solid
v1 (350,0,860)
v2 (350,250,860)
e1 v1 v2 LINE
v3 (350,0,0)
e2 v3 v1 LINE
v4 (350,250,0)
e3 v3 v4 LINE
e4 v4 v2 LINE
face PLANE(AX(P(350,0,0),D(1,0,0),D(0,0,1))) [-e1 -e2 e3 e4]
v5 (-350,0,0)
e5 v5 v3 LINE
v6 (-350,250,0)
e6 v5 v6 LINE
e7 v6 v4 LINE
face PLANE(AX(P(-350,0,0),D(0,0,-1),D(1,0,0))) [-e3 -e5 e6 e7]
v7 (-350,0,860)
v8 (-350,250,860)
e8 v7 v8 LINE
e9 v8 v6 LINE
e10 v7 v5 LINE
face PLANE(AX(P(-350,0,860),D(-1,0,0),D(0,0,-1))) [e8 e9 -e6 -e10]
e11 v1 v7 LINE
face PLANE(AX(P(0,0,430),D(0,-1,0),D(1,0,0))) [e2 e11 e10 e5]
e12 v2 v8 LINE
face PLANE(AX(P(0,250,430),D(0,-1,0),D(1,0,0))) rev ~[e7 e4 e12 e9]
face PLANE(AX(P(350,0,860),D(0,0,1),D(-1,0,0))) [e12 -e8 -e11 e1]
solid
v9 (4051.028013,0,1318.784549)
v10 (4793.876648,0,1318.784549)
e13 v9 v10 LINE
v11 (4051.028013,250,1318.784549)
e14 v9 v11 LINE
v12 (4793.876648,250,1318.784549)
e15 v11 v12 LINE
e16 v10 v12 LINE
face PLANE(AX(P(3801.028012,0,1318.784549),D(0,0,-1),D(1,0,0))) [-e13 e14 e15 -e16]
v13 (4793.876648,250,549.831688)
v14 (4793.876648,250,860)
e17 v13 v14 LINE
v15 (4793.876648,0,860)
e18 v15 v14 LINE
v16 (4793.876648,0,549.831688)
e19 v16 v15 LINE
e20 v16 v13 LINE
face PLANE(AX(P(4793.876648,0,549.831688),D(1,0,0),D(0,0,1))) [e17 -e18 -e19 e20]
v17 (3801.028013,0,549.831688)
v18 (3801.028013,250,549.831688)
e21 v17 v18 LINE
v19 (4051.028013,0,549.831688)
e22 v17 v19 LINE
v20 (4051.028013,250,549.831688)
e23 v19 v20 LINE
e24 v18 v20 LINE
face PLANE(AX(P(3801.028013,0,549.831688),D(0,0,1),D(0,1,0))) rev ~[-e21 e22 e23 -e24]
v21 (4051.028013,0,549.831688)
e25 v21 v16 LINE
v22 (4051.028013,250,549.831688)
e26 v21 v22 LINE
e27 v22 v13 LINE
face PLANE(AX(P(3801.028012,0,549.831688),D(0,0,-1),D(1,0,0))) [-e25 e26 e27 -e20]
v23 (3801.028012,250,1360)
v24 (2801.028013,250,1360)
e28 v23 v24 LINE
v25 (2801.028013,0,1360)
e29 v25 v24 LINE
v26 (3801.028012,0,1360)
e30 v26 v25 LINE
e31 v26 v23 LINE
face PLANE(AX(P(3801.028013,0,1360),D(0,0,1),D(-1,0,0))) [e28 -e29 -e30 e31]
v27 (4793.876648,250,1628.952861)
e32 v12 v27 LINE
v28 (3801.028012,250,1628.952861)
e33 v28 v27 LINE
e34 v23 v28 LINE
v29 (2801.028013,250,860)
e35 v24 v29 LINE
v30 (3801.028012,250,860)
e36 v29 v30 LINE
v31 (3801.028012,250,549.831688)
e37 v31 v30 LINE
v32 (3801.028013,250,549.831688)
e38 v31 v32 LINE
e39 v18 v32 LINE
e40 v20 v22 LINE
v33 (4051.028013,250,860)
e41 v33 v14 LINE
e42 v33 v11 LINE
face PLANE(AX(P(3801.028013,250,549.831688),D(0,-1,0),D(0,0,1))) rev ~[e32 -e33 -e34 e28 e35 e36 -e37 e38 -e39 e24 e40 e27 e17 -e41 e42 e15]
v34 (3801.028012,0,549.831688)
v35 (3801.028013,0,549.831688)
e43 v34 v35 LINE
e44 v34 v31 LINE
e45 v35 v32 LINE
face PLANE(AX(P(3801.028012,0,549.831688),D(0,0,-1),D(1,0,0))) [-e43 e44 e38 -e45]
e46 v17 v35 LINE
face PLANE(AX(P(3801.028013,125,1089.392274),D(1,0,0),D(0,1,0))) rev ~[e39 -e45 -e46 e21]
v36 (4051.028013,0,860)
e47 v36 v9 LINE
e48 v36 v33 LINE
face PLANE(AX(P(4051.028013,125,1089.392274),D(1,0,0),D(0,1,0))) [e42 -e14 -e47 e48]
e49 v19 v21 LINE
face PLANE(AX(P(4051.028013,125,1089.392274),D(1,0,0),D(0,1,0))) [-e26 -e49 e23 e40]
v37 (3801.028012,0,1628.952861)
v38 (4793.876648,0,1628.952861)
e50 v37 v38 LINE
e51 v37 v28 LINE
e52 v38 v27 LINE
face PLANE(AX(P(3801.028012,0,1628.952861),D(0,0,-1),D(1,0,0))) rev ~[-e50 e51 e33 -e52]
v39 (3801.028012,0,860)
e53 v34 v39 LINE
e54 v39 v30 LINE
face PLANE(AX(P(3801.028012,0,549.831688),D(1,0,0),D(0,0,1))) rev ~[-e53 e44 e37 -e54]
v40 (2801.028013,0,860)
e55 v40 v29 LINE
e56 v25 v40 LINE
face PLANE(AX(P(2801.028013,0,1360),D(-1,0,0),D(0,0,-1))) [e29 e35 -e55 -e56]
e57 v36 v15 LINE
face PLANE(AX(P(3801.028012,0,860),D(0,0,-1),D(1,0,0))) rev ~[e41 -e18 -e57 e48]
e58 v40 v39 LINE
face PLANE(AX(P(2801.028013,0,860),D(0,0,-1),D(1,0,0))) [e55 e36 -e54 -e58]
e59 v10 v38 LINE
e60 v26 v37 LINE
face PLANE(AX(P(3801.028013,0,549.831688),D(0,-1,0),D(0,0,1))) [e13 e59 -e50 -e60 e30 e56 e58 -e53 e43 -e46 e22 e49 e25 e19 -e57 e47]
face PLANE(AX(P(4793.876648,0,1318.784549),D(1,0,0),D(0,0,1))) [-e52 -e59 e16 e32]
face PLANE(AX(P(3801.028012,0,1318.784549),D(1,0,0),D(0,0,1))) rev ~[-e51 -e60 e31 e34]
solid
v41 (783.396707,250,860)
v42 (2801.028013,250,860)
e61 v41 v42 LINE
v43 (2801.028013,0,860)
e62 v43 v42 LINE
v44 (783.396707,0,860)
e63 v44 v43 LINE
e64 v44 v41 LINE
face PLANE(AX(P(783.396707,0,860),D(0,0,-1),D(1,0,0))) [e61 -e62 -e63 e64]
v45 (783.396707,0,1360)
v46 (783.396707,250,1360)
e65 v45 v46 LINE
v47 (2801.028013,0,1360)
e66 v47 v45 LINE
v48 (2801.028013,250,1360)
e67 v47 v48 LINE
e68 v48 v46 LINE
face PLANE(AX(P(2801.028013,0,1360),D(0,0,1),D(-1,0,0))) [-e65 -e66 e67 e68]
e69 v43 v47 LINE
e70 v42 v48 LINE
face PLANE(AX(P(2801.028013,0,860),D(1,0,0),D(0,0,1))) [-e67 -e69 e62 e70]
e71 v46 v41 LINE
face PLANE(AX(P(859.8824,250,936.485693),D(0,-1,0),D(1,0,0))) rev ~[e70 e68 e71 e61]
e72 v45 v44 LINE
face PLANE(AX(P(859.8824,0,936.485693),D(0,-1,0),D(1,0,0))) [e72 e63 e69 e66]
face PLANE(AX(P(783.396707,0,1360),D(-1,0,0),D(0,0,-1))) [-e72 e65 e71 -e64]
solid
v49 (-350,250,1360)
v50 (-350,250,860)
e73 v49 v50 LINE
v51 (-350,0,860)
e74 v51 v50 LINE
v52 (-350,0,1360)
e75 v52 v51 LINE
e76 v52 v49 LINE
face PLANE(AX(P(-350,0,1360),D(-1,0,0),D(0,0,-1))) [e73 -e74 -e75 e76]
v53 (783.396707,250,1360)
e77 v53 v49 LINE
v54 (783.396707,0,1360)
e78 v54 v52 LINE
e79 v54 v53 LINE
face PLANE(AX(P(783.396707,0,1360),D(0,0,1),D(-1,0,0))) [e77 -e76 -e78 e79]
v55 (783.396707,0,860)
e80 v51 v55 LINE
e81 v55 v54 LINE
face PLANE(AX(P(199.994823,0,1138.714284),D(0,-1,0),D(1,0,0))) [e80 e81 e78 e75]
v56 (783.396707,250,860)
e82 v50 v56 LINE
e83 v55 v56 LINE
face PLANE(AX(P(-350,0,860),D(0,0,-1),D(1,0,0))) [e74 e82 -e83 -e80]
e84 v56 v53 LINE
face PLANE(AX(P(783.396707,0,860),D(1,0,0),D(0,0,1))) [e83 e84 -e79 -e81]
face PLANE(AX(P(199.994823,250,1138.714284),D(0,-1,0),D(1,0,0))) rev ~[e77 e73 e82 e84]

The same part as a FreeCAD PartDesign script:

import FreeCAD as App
import Part
import Sketcher
from FreeCAD import Vector
Q = App.Units.Quantity

doc = App.newDocument("Part")
body = doc.addObject("PartDesign::Body", "Body")

# Sketch on XZ plane
sketch1 = body.newObject("Sketcher::SketchObject", "Sketch")
sketch1.AttachmentSupport = (doc.getObject("XZ_Plane"), [""])
sketch1.MapMode = "FlatFace"
sketch1.addGeometry(Part.LineSegment(Vector(350, 0, 0), Vector(350, 860, 0)), False)
sketch1.addGeometry(Part.LineSegment(Vector(350, 860, 0), Vector(-350, 860, 0)), False)
sketch1.addGeometry(Part.LineSegment(Vector(-350, 860, 0), Vector(-350, 0, 0)), False)
sketch1.addGeometry(Part.LineSegment(Vector(-350, 0, 0), Vector(350, 0, 0)), False)
sketch1.addConstraint(Sketcher.Constraint("Coincident", 0, 2, 1, 1))
sketch1.addConstraint(Sketcher.Constraint("Coincident", 1, 2, 2, 1))
sketch1.addConstraint(Sketcher.Constraint("Coincident", 2, 2, 3, 1))
sketch1.addConstraint(Sketcher.Constraint("Coincident", 3, 2, 0, 1))
sketch1.addConstraint(Sketcher.Constraint("Vertical", 0))
sketch1.addConstraint(Sketcher.Constraint("Horizontal", 1))
sketch1.addConstraint(Sketcher.Constraint("Vertical", 2))
sketch1.addConstraint(Sketcher.Constraint("Horizontal", 3))
sketch1.addConstraint(Sketcher.Constraint("Symmetric", 2, 2, 3, 2, -1, 1))
sketch1.addConstraint(Sketcher.Constraint("DistanceX", 1, 2, 1, 1, Q("700 mm")))
sketch1.addConstraint(Sketcher.Constraint("DistanceY", 0, 1, 0, 2, Q("860 mm")))
pad1 = body.newObject("PartDesign::Pad", "Pad")
pad1.Profile = sketch1
pad1.Length = 250
pad1.Reversed = True
body2 = doc.addObject("PartDesign::Body", "Body001")

# Sketch on XZ plane
sketch2 = body2.newObject("Sketcher::SketchObject", "Sketch001")
sketch2.AttachmentSupport = (doc.getObject("XZ_Plane001"), [""])
sketch2.MapMode = "FlatFace"
sketch2.addGeometry(Part.LineSegment(Vector(783, 860, 0), Vector(783, 1360, 0)), False)
sketch2.addGeometry(Part.LineSegment(Vector(783, 1360, 0), Vector(-350, 1360, 0)), False)
sketch2.addGeometry(Part.LineSegment(Vector(-350, 1360, 0), Vector(-350, 860, 0)), False)
sketch2.addGeometry(Part.LineSegment(Vector(-350, 860, 0), Vector(783, 860, 0)), False)
sketch2.addConstraint(Sketcher.Constraint("Coincident", 0, 2, 1, 1))
sketch2.addConstraint(Sketcher.Constraint("Coincident", 1, 2, 2, 1))
sketch2.addConstraint(Sketcher.Constraint("Coincident", 2, 2, 3, 1))
sketch2.addConstraint(Sketcher.Constraint("Coincident", 3, 2, 0, 1))
sketch2.addConstraint(Sketcher.Constraint("Vertical", 0))
sketch2.addConstraint(Sketcher.Constraint("Horizontal", 1))
sketch2.addConstraint(Sketcher.Constraint("Vertical", 2))
sketch2.addConstraint(Sketcher.Constraint("Horizontal", 3))
sketch2.addConstraint(Sketcher.Constraint("DistanceY", 0, 1, 0, 2, Q("500 mm")))
sketch2.addConstraint(Sketcher.Constraint("DistanceY", -1, 1, 0, 2, Q("1360 mm")))
sketch2.addConstraint(Sketcher.Constraint("DistanceX", 1, 2, -1, 1, Q("350 mm")))
sketch2.addConstraint(Sketcher.Constraint("DistanceX", 1, 2, 1, 1, Q("1133.396707 mm")))
pad2 = body2.newObject("PartDesign::Pad", "Pad001")
pad2.Profile = sketch2
pad2.Length = 250
pad2.Reversed = True
body3 = doc.addObject("PartDesign::Body", "Body002")

# Sketch on XZ plane
sketch3 = body3.newObject("Sketcher::SketchObject", "Sketch002")
sketch3.AttachmentSupport = (doc.getObject("XZ_Plane002"), [""])
sketch3.MapMode = "FlatFace"
sketch3.addGeometry(Part.LineSegment(Vector(783, 860, 0), Vector(2801, 860, 0)), False)
sketch3.addGeometry(Part.LineSegment(Vector(2801, 860, 0), Vector(2801, 1360, 0)), False)
sketch3.addGeometry(Part.LineSegment(Vector(2801, 1360, 0), Vector(783, 1360, 0)), False)
sketch3.addGeometry(Part.LineSegment(Vector(783, 1360, 0), Vector(783, 860, 0)), False)
sketch3.addConstraint(Sketcher.Constraint("Coincident", 0, 2, 1, 1))
sketch3.addConstraint(Sketcher.Constraint("Coincident", 1, 2, 2, 1))
sketch3.addConstraint(Sketcher.Constraint("Coincident", 2, 2, 3, 1))
sketch3.addConstraint(Sketcher.Constraint("Coincident", 3, 2, 0, 1))
sketch3.addConstraint(Sketcher.Constraint("Horizontal", 0))
sketch3.addConstraint(Sketcher.Constraint("Vertical", 1))
sketch3.addConstraint(Sketcher.Constraint("Horizontal", 2))
sketch3.addConstraint(Sketcher.Constraint("Vertical", 3))
sketch3.addConstraint(Sketcher.Constraint("DistanceY", 1, 1, 1, 2, Q("500 mm")))
sketch3.addConstraint(Sketcher.Constraint("DistanceY", -1, 1, 0, 2, Q("860 mm")))
sketch3.addConstraint(Sketcher.Constraint("DistanceX", 0, 1, 0, 2, Q("2017.631306 mm")))
sketch3.addConstraint(Sketcher.Constraint("DistanceX", -1, 1, 0, 2, Q("2801.028013 mm")))
pad3 = body3.newObject("PartDesign::Pad", "Pad002")
pad3.Profile = sketch3
pad3.Length = 250
pad3.Reversed = True
body4 = doc.addObject("PartDesign::Body", "Body003")

# Sketch on XZ plane
sketch4 = body4.newObject("Sketcher::SketchObject", "Sketch003")
sketch4.AttachmentSupport = (doc.getObject("XZ_Plane003"), [""])
sketch4.MapMode = "FlatFace"
sketch4.addGeometry(Part.LineSegment(Vector(2801, 1360, 0), Vector(2801, 860, 0)), False)
sketch4.addGeometry(Part.LineSegment(Vector(2801, 860, 0), Vector(3801, 860, 0)), False)
sketch4.addGeometry(Part.LineSegment(Vector(3801, 860, 0), Vector(3801, 1360, 0)), False)
sketch4.addGeometry(Part.LineSegment(Vector(3801, 1360, 0), Vector(2801, 1360, 0)), False)
sketch4.addConstraint(Sketcher.Constraint("Coincident", 0, 2, 1, 1))
sketch4.addConstraint(Sketcher.Constraint("Coincident", 1, 2, 2, 1))
sketch4.addConstraint(Sketcher.Constraint("Coincident", 2, 2, 3, 1))
sketch4.addConstraint(Sketcher.Constraint("Coincident", 3, 2, 0, 1))
sketch4.addConstraint(Sketcher.Constraint("Vertical", 0))
sketch4.addConstraint(Sketcher.Constraint("Horizontal", 1))
sketch4.addConstraint(Sketcher.Constraint("Vertical", 2))
sketch4.addConstraint(Sketcher.Constraint("Horizontal", 3))
sketch4.addConstraint(Sketcher.Constraint("DistanceX", 1, 1, 1, 2, Q("1000 mm")))
sketch4.addConstraint(Sketcher.Constraint("DistanceY", 0, 2, 0, 1, Q("500 mm")))
sketch4.addConstraint(Sketcher.Constraint("DistanceY", -1, 1, 0, 2, Q("860 mm")))
sketch4.addConstraint(Sketcher.Constraint("DistanceX", -1, 1, 0, 2, Q("2801.028013 mm")))
pad4 = body4.newObject("PartDesign::Pad", "Pad003")
pad4.Profile = sketch4
pad4.Length = 250
pad4.Reversed = True

# Sketch on YZ plane
sketch5 = body4.newObject("Sketcher::SketchObject", "Sketch004")
sketch5.AttachmentSupport = (doc.getObject("YZ_Plane003"), [""])
sketch5.MapMode = "FlatFace"
sketch5.AttachmentOffset = App.Placement(Vector(0, 0, 3801.028013), App.Rotation())
sketch5.addGeometry(Part.LineSegment(Vector(0, 1629, 0), Vector(0, 550, 0)), False)
sketch5.addGeometry(Part.LineSegment(Vector(0, 550, 0), Vector(250, 550, 0)), False)
sketch5.addGeometry(Part.LineSegment(Vector(250, 550, 0), Vector(250, 1629, 0)), False)
sketch5.addGeometry(Part.LineSegment(Vector(250, 1629, 0), Vector(0, 1629, 0)), False)
sketch5.addConstraint(Sketcher.Constraint("Coincident", 0, 2, 1, 1))
sketch5.addConstraint(Sketcher.Constraint("Coincident", 1, 2, 2, 1))
sketch5.addConstraint(Sketcher.Constraint("Coincident", 2, 2, 3, 1))
sketch5.addConstraint(Sketcher.Constraint("Coincident", 3, 2, 0, 1))
sketch5.addConstraint(Sketcher.Constraint("Vertical", 0))
sketch5.addConstraint(Sketcher.Constraint("Horizontal", 1))
sketch5.addConstraint(Sketcher.Constraint("Vertical", 2))
sketch5.addConstraint(Sketcher.Constraint("Horizontal", 3))
sketch5.addConstraint(Sketcher.Constraint("PointOnObject", 0, 2, -2))
sketch5.addConstraint(Sketcher.Constraint("DistanceX", 1, 1, 1, 2, Q("250 mm")))
sketch5.addConstraint(Sketcher.Constraint("DistanceY", 0, 2, 0, 1, Q("1079.121173 mm")))
sketch5.addConstraint(Sketcher.Constraint("DistanceY", -1, 1, 2, 2, Q("1628.952861 mm")))
pad5 = body4.newObject("PartDesign::Pad", "Pad004")
pad5.Profile = sketch5
pad5.Length = 250

# Sketch on XZ plane
sketch6 = body4.newObject("Sketcher::SketchObject", "Sketch005")
sketch6.AttachmentSupport = (doc.getObject("XZ_Plane003"), [""])
sketch6.MapMode = "FlatFace"
sketch6.addGeometry(Part.LineSegment(Vector(3801, 1629, 0), Vector(3801, 1319, 0)), False)
sketch6.addGeometry(Part.LineSegment(Vector(3801, 1319, 0), Vector(4794, 1319, 0)), False)
sketch6.addGeometry(Part.LineSegment(Vector(4794, 1319, 0), Vector(4794, 1629, 0)), False)
sketch6.addGeometry(Part.LineSegment(Vector(4794, 1629, 0), Vector(3801, 1629, 0)), False)
sketch6.addGeometry(Part.LineSegment(Vector(3801, 860, 0), Vector(3801, 550, 0)), False)
sketch6.addGeometry(Part.LineSegment(Vector(3801, 550, 0), Vector(4794, 550, 0)), False)
sketch6.addGeometry(Part.LineSegment(Vector(4794, 550, 0), Vector(4794, 860, 0)), False)
sketch6.addGeometry(Part.LineSegment(Vector(4794, 860, 0), Vector(3801, 860, 0)), False)
sketch6.addConstraint(Sketcher.Constraint("Coincident", 0, 2, 1, 1))
sketch6.addConstraint(Sketcher.Constraint("Coincident", 1, 2, 2, 1))
sketch6.addConstraint(Sketcher.Constraint("Coincident", 2, 2, 3, 1))
sketch6.addConstraint(Sketcher.Constraint("Coincident", 3, 2, 0, 1))
sketch6.addConstraint(Sketcher.Constraint("Coincident", 4, 2, 5, 1))
sketch6.addConstraint(Sketcher.Constraint("Coincident", 5, 2, 6, 1))
sketch6.addConstraint(Sketcher.Constraint("Coincident", 6, 2, 7, 1))
sketch6.addConstraint(Sketcher.Constraint("Coincident", 7, 2, 4, 1))
sketch6.addConstraint(Sketcher.Constraint("Vertical", 0))
sketch6.addConstraint(Sketcher.Constraint("Horizontal", 1))
sketch6.addConstraint(Sketcher.Constraint("Vertical", 2))
sketch6.addConstraint(Sketcher.Constraint("Horizontal", 3))
sketch6.addConstraint(Sketcher.Constraint("Vertical", 4))
sketch6.addConstraint(Sketcher.Constraint("Horizontal", 5))
sketch6.addConstraint(Sketcher.Constraint("Vertical", 6))
sketch6.addConstraint(Sketcher.Constraint("Horizontal", 7))
sketch6.addConstraint(Sketcher.Constraint("Vertical", 3, 2, 4, 2))
sketch6.addConstraint(Sketcher.Constraint("Vertical", 2, 2, 5, 2))
sketch6.addConstraint(Sketcher.Constraint("Equal", 2, 4))
sketch6.addConstraint(Sketcher.Constraint("DistanceY", -1, 1, 6, 2, Q("860 mm")))
sketch6.addConstraint(Sketcher.Constraint("DistanceY", 0, 2, 0, 1, Q("310.168312 mm")))
sketch6.addConstraint(Sketcher.Constraint("DistanceX", 1, 1, 1, 2, Q("992.848635 mm")))
sketch6.addConstraint(Sketcher.Constraint("DistanceY", -1, 1, 0, 2, Q("1318.784549 mm")))
sketch6.addConstraint(Sketcher.Constraint("DistanceX", -1, 1, 0, 2, Q("3801.028012 mm")))
pad6 = body4.newObject("PartDesign::Pad", "Pad005")
pad6.Profile = sketch6
pad6.Length = 250
pad6.Reversed = True

doc.recompute()
